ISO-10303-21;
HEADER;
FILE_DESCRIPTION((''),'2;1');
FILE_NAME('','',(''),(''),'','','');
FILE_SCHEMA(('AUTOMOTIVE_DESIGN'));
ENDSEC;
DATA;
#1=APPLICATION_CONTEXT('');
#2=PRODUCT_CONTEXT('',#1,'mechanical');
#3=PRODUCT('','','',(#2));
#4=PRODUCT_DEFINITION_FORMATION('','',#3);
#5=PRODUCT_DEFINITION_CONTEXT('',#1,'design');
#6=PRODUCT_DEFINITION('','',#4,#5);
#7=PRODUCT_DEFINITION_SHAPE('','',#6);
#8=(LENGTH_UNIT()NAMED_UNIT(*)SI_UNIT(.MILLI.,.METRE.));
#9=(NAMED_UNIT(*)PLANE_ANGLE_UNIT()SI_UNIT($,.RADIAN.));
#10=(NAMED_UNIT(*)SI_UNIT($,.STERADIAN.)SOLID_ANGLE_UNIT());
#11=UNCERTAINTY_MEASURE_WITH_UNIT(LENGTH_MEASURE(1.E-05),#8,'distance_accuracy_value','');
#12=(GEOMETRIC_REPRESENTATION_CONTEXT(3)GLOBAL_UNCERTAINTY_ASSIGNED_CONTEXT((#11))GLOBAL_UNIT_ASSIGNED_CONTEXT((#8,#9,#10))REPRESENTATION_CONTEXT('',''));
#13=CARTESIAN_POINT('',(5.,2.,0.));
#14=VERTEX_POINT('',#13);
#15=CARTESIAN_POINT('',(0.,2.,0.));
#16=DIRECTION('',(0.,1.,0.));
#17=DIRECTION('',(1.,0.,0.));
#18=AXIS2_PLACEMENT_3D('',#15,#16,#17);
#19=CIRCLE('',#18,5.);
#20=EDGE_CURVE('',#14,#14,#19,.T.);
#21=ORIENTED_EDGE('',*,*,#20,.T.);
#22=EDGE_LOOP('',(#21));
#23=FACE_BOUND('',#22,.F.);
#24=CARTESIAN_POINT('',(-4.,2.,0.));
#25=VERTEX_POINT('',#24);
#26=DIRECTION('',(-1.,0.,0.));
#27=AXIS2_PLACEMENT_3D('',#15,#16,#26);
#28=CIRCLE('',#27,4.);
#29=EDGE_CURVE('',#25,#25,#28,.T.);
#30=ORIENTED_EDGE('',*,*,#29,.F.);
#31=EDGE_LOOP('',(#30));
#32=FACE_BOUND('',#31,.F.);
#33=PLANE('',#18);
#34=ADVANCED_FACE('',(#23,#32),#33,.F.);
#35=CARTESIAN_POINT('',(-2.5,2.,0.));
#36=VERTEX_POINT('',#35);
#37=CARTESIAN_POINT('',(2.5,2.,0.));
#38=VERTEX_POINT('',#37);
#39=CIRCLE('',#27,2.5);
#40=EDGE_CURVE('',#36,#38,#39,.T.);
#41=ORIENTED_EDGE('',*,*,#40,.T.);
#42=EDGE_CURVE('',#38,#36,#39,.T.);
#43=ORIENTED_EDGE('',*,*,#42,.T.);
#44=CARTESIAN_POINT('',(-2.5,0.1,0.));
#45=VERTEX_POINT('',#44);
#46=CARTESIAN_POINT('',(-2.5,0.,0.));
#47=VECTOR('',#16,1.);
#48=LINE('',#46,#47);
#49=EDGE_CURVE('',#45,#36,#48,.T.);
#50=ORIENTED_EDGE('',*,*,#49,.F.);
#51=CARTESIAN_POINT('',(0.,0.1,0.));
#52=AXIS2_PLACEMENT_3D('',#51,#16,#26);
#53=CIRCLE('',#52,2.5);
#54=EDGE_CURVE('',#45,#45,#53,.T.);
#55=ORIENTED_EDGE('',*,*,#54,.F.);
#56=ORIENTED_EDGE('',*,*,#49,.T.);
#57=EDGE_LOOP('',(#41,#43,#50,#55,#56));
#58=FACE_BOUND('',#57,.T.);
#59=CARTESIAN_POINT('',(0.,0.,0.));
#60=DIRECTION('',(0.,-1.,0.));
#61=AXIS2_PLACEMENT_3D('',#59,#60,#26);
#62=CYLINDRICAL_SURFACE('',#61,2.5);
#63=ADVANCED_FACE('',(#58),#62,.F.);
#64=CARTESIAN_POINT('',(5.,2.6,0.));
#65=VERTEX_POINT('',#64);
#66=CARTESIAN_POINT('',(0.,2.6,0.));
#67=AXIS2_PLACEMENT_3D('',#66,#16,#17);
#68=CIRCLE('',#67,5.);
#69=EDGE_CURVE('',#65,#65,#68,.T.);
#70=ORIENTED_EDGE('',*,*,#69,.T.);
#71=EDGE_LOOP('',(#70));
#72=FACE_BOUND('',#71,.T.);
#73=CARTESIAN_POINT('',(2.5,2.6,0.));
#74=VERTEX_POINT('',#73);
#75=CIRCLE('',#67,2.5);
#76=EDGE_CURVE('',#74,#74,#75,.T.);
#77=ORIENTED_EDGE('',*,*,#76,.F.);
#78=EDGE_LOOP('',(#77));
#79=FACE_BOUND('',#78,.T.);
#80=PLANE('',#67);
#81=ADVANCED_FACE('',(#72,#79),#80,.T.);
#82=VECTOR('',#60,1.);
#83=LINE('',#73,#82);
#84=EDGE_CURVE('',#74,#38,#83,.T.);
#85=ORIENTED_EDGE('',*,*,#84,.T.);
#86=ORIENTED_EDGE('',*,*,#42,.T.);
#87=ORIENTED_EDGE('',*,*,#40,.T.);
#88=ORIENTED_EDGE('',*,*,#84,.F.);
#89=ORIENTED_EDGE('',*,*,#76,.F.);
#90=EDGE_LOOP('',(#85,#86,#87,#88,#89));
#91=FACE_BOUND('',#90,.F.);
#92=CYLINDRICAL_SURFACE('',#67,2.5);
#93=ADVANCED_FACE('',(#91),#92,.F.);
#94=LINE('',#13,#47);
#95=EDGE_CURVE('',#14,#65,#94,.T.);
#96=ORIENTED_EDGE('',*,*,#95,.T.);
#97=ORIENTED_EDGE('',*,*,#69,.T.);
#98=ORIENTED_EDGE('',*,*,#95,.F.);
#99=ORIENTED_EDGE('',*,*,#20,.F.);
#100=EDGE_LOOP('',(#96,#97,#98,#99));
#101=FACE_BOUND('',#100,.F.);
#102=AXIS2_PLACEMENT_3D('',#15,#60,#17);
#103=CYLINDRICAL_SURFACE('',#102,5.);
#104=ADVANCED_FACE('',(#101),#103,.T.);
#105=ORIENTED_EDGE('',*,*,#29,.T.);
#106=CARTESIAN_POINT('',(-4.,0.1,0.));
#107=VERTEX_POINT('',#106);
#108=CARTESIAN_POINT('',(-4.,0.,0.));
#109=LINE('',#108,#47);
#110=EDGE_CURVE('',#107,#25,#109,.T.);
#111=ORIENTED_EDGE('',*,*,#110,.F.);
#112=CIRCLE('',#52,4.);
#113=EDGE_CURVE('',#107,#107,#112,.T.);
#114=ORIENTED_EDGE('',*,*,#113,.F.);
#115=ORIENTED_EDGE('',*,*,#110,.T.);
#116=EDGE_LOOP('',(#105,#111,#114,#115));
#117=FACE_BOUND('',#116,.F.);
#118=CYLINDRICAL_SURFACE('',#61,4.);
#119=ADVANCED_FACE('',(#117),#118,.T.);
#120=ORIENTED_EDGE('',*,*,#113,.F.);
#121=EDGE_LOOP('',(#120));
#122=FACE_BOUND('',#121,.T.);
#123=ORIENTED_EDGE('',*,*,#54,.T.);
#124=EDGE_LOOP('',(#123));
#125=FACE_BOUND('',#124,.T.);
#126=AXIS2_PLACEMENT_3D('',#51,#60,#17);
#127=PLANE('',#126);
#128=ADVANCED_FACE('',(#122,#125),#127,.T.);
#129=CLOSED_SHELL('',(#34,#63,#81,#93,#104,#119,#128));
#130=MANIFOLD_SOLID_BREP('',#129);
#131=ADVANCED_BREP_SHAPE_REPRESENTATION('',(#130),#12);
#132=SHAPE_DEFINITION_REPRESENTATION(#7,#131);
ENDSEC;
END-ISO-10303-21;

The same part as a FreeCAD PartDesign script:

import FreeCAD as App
import Part
import Sketcher

doc = App.newDocument("Part")
body = doc.addObject("PartDesign::Body", "Body")

sketch1 = doc.addObject("Sketcher::SketchObject", "Sketch")
body.addObject(sketch1)
sketch1.AttachmentSupport = (doc.XZ_Plane, [""])
sketch1.MapMode = "FlatFace"
sketch1.addGeometry(Part.Circle(App.Vector(0, 0, 0), App.Vector(0, 0, 1), 4), False)
sketch1.addGeometry(Part.Circle(App.Vector(0, 0, 0), App.Vector(0, 0, 1), 2.5), False)
sketch1.addConstraint(Sketcher.Constraint("Coincident", 0, 3, -1, 1))
sketch1.addConstraint(Sketcher.Constraint("Coincident", 1, 3, -1, 1))
sketch1.addConstraint(Sketcher.Constraint("Diameter", 0, 8.0))
sketch1.addConstraint(Sketcher.Constraint("Diameter", 1, 5.0))
pad1 = doc.addObject("PartDesign::Pad", "Pad")
body.addObject(pad1)
pad1.Profile = sketch1
pad1.Length = 2
pad1.Reversed = True

sketch2 = doc.addObject("Sketcher::SketchObject", "Sketch001")
body.addObject(sketch2)
sketch2.AttachmentSupport = (doc.XZ_Plane, [""])
sketch2.MapMode = "FlatFace"
sketch2.AttachmentOffset = App.Placement(App.Vector(0, 0, -2), App.Rotation())
sketch2.addGeometry(Part.Circle(App.Vector(0, 0, 0), App.Vector(0, 0, 1), 5), False)
sketch2.addConstraint(Sketcher.Constraint("Coincident", 0, 3, -1, 1))
sketch2.addConstraint(Sketcher.Constraint("Diameter", 0, 10.0))
pad2 = doc.addObject("PartDesign::Pad", "Pad001")
body.addObject(pad2)
pad2.Profile = sketch2
pad2.Length = 1
pad2.Reversed = True

sketch3 = doc.addObject("Sketcher::SketchObject", "Sketch002")
body.addObject(sketch3)
sketch3.AttachmentSupport = (doc.XZ_Plane, [""])
sketch3.MapMode = "FlatFace"
sketch3.AttachmentOffset = App.Placement(App.Vector(0, 0, -3), App.Rotation())
sketch3.addGeometry(Part.Circle(App.Vector(0, 0, 0), App.Vector(0, 0, 1), 5), False)
sketch3.addConstraint(Sketcher.Constraint("Coincident", 0, 3, -1, 1))
sketch3.addConstraint(Sketcher.Constraint("Diameter", 0, 10.0))
pocket1 = doc.addObject("PartDesign::Pocket", "Pocket")
body.addObject(pocket1)
pocket1.Profile = sketch3
pocket1.Length = 0.4
pocket1.Reversed = True

sketch4 = doc.addObject("Sketcher::SketchObject", "Sketch003")
body.addObject(sketch4)
sketch4.AttachmentSupport = (doc.XZ_Plane, [""])
sketch4.MapMode = "FlatFace"
sketch4.AttachmentOffset = App.Placement(App.Vector(0, 0, -2.6), App.Rotation())
sketch4.addGeometry(Part.Circle(App.Vector(0, 0, 0), App.Vector(0, 0, 1), 2.5), False)
sketch4.addConstraint(Sketcher.Constraint("Coincident", 0, 3, -1, 1))
sketch4.addConstraint(Sketcher.Constraint("Diameter", 0, 5.0))
pocket2 = doc.addObject("PartDesign::Pocket", "Pocket001")
body.addObject(pocket2)
pocket2.Profile = sketch4
pocket2.Length = 0.6
pocket2.Reversed = True

sketch5 = doc.addObject("Sketcher::SketchObject", "Sketch004")
body.addObject(sketch5)
sketch5.AttachmentSupport = (doc.XZ_Plane, [""])
sketch5.MapMode = "FlatFace"
sketch5.addGeometry(Part.Circle(App.Vector(0, 0, 0), App.Vector(0, 0, 1), 4), False)
sketch5.addGeometry(Part.Circle(App.Vector(0, 0, 0), App.Vector(0, 0, 1), 2.5), False)
sketch5.addConstraint(Sketcher.Constraint("Coincident", 0, 3, -1, 1))
sketch5.addConstraint(Sketcher.Constraint("Coincident", 1, 3, -1, 1))
sketch5.addConstraint(Sketcher.Constraint("Diameter", 0, 8.0))
sketch5.addConstraint(Sketcher.Constraint("Diameter", 1, 5.0))
pocket3 = doc.addObject("PartDesign::Pocket", "Pocket002")
body.addObject(pocket3)
pocket3.Profile = sketch5
pocket3.Length = 0.1

doc.recompute()
